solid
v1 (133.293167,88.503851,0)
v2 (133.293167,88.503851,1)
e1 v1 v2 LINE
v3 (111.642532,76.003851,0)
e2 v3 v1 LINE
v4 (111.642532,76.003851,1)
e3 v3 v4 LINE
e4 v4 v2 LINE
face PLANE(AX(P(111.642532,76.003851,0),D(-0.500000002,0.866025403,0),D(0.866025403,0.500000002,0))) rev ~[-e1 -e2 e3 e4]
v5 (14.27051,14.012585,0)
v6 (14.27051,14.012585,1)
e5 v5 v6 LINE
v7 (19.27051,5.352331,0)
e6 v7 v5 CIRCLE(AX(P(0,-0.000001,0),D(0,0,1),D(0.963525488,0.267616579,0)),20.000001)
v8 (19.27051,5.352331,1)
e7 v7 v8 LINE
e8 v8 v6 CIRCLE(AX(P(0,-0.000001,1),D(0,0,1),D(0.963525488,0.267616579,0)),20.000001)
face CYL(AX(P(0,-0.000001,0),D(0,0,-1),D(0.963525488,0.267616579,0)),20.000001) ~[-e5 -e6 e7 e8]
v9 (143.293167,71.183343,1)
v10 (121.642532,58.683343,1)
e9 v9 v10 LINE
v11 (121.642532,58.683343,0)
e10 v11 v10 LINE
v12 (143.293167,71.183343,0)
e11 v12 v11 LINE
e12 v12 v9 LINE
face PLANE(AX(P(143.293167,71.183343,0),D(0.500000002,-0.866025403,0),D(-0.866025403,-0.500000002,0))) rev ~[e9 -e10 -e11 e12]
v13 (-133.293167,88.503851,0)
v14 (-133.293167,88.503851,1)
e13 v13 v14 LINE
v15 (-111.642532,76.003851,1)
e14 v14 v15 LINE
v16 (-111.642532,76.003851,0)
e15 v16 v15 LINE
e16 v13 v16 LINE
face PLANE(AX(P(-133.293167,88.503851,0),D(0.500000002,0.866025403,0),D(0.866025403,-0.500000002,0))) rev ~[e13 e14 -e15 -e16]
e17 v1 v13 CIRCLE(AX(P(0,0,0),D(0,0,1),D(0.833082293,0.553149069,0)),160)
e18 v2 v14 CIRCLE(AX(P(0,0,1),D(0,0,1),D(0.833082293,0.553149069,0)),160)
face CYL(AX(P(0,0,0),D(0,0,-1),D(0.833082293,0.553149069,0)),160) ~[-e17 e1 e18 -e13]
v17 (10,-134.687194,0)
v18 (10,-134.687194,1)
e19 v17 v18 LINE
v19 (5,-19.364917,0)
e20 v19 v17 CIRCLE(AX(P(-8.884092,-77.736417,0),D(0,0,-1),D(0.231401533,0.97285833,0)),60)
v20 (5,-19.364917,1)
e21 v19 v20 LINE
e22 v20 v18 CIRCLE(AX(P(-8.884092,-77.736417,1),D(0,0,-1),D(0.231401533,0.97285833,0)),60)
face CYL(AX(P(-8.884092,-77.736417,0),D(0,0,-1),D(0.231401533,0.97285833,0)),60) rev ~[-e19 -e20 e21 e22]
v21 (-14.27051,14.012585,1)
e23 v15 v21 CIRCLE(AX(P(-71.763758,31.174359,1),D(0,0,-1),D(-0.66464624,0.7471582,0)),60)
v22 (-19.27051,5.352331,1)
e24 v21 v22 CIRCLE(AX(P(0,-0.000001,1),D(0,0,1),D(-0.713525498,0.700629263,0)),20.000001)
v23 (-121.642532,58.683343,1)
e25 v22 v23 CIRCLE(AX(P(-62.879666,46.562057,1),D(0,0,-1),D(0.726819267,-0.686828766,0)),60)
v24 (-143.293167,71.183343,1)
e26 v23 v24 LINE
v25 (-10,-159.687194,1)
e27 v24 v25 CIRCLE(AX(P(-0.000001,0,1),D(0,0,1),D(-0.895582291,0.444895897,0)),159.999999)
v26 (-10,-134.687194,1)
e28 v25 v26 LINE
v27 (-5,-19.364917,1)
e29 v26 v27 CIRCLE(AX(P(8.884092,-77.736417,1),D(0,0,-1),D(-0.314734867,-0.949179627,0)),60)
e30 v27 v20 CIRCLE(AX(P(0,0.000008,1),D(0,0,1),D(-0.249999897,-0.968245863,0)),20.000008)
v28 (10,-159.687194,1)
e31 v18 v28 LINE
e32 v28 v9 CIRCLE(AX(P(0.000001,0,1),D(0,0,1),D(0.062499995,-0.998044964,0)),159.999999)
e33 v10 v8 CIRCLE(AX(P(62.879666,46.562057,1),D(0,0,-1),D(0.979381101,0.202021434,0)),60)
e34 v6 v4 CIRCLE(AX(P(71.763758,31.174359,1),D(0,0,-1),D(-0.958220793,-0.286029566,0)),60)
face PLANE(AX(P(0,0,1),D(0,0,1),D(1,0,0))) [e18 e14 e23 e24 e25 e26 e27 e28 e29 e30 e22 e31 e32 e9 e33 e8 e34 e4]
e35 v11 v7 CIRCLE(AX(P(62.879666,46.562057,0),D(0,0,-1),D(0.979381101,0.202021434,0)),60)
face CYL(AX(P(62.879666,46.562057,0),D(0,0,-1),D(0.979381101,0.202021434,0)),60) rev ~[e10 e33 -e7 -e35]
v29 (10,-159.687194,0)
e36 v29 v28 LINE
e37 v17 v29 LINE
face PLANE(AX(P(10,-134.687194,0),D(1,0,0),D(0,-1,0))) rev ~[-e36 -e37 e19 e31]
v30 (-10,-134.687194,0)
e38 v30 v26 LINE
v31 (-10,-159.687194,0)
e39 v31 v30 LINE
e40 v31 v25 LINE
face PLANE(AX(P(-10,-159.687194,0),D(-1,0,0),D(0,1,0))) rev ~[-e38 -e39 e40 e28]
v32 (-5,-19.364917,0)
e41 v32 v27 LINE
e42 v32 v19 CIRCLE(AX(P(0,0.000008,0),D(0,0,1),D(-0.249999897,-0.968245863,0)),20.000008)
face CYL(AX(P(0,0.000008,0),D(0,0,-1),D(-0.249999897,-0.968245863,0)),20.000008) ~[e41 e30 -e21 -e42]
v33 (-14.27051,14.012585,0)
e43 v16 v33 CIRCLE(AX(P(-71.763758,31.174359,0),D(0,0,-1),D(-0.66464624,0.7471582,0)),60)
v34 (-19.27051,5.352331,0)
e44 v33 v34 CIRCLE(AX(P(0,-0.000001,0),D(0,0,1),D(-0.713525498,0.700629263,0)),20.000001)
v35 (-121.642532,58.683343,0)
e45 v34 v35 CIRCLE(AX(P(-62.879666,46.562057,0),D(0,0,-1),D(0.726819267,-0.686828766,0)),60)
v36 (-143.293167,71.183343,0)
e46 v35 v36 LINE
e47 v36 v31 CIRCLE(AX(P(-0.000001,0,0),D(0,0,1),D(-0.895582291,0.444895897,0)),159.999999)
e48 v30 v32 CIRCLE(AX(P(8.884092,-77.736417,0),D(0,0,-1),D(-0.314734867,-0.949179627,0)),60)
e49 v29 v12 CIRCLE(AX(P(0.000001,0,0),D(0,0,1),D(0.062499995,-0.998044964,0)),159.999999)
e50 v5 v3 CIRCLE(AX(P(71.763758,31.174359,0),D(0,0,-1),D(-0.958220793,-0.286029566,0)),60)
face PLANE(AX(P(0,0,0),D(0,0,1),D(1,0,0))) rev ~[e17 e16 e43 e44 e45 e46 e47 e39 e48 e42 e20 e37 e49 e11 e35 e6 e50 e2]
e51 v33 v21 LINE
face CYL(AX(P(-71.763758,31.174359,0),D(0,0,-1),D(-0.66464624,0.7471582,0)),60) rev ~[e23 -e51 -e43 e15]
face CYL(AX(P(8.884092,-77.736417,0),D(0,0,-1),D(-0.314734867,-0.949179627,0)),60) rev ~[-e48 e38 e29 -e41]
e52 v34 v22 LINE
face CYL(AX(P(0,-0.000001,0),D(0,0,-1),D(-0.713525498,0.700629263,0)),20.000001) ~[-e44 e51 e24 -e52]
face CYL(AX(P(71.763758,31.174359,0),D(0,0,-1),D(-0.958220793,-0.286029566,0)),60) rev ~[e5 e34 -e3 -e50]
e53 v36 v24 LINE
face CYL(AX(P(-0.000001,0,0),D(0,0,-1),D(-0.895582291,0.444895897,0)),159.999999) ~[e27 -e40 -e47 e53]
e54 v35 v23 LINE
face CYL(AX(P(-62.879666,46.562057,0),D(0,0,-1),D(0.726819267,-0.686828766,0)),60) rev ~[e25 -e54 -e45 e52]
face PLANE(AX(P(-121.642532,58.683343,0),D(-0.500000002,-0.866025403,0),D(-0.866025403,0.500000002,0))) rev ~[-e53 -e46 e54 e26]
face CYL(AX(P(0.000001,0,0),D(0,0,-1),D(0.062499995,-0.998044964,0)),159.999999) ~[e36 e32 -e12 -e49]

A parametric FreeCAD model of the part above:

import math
import FreeCAD as App
import Part
import Sketcher

V = App.Vector
Q = App.Units.Quantity

doc = App.newDocument("Part")
params = doc.addObject("Spreadsheet::Sheet", "Params")
for row, (alias, value) in enumerate([
    ("sketch1_radius", "60 mm"),
    ("sketch1_radius2", "159.999999 mm"),
    ("sketch1_radius3", "20.000001 mm"),
    ("sketch1_height", "25 mm"),
    ("sketch1_length", "25 mm"),
    ("pad1_length", "1 mm"),
], start=1):
    params.set(f"A{row}", alias)
    params.set(f"B{row}", "=" + value)
    params.setAlias(f"B{row}", alias)

body = doc.addObject("PartDesign::Body", "Body")

# Sketch on XY plane
sketch1 = doc.addObject("Sketcher::SketchObject", "Sketch")
body.addObject(sketch1)
sketch1.AttachmentSupport = (doc.XY_Plane, [""])
sketch1.MapMode = "FlatFace"
sketch1.addGeometry(Part.ArcOfCircle(Part.Circle(V(9, -78, 0), V(0, 0, 1), 60), math.radians(103), math.radians(252)), False)
sketch1.addGeometry(Part.ArcOfCircle(Part.Circle(V(0, 0, 0), V(0, 0, 1), 20), math.radians(-104), math.radians(-76)), False)
sketch1.addGeometry(Part.ArcOfCircle(Part.Circle(V(-9, -78, 0), V(0, 0, 1), 60), math.radians(-72), math.radians(77)), False)
sketch1.addGeometry(Part.LineSegment(V(10, -135, 0), V(10, -160, 0)), False)
sketch1.addGeometry(Part.ArcOfCircle(Part.Circle(V(0, 0, 0), V(0, 0, 1), 160), math.radians(-86), math.radians(26)), False)
sketch1.addGeometry(Part.LineSegment(V(143, 71, 0), V(122, 59, 0)), False)
sketch1.addGeometry(Part.ArcOfCircle(Part.Circle(V(63, 47, 0), V(0, 0, 1), 60), math.radians(-137), math.radians(12)), False)
sketch1.addGeometry(Part.ArcOfCircle(Part.Circle(V(0, 0, 0), V(0, 0, 1), 20), math.radians(16), math.radians(44)), False)
sketch1.addGeometry(Part.ArcOfCircle(Part.Circle(V(72, 31, 0), V(0, 0, 1), 60), math.radians(48), math.radians(197)), False)
sketch1.addGeometry(Part.LineSegment(V(112, 76, 0), V(133, 89, 0)), False)
sketch1.addGeometry(Part.ArcOfCircle(Part.Circle(V(0, 0, 0), V(0, 0, 1), 160), math.radians(34), math.radians(146)), False)
sketch1.addGeometry(Part.LineSegment(V(-133, 89, 0), V(-112, 76, 0)), False)
sketch1.addGeometry(Part.ArcOfCircle(Part.Circle(V(-72, 31, 0), V(0, 0, 1), 60), math.radians(-17), math.radians(132)), False)
sketch1.addGeometry(Part.ArcOfCircle(Part.Circle(V(0, 0, 0), V(0, 0, 1), 20), math.radians(136), math.radians(164)), False)
sketch1.addGeometry(Part.ArcOfCircle(Part.Circle(V(-63, 47, 0), V(0, 0, 1), 60), math.radians(168), math.radians(317)), False)
sketch1.addGeometry(Part.LineSegment(V(-122, 59, 0), V(-143, 71, 0)), False)
sketch1.addGeometry(Part.ArcOfCircle(Part.Circle(V(0, 0, 0), V(0, 0, 1), 160), math.radians(154), math.radians(266)), False)
sketch1.addGeometry(Part.LineSegment(V(-10, -160, 0), V(-10, -135, 0)), False)
sketch1.addConstraint(Sketcher.Constraint("Coincident", 0, 1, 1, 1))
sketch1.addConstraint(Sketcher.Constraint("Coincident", 1, 2, 2, 2))
sketch1.addConstraint(Sketcher.Constraint("Coincident", 2, 1, 3, 1))
sketch1.addConstraint(Sketcher.Constraint("Coincident", 3, 2, 4, 1))
sketch1.addConstraint(Sketcher.Constraint("Coincident", 4, 2, 5, 1))
sketch1.addConstraint(Sketcher.Constraint("Coincident", 5, 2, 6, 2))
sketch1.addConstraint(Sketcher.Constraint("Coincident", 6, 1, 7, 1))
sketch1.addConstraint(Sketcher.Constraint("Coincident", 7, 2, 8, 2))
sketch1.addConstraint(Sketcher.Constraint("Coincident", 8, 1, 9, 1))
sketch1.addConstraint(Sketcher.Constraint("Coincident", 9, 2, 10, 1))
sketch1.addConstraint(Sketcher.Constraint("Coincident", 10, 2, 11, 1))
sketch1.addConstraint(Sketcher.Constraint("Coincident", 11, 2, 12, 2))
sketch1.addConstraint(Sketcher.Constraint("Coincident", 12, 1, 13, 1))
sketch1.addConstraint(Sketcher.Constraint("Coincident", 13, 2, 14, 2))
sketch1.addConstraint(Sketcher.Constraint("Coincident", 14, 1, 15, 1))
sketch1.addConstraint(Sketcher.Constraint("Coincident", 15, 2, 16, 1))
sketch1.addConstraint(Sketcher.Constraint("Coincident", 16, 2, 17, 1))
sketch1.addConstraint(Sketcher.Constraint("Coincident", 17, 2, 0, 2))
sketch1.addConstraint(Sketcher.Constraint("Vertical", 3))
sketch1.addConstraint(Sketcher.Constraint("Vertical", 17))
sketch1.addConstraint(Sketcher.Constraint("Coincident", 1, 3, -1, 1))
sketch1.addConstraint(Sketcher.Constraint("Coincident", 4, 3, -1, 1))
sketch1.addConstraint(Sketcher.Constraint("Coincident", 7, 3, -1, 1))
sketch1.addConstraint(Sketcher.Constraint("Coincident", 10, 3, -1, 1))
sketch1.addConstraint(Sketcher.Constraint("Coincident", 13, 3, -1, 1))
sketch1.addConstraint(Sketcher.Constraint("Coincident", 16, 3, -1, 1))
sketch1.addConstraint(Sketcher.Constraint("Equal", 0, 2))
sketch1.addConstraint(Sketcher.Constraint("Equal", 2, 6))
sketch1.addConstraint(Sketcher.Constraint("Equal", 6, 8))
sketch1.addConstraint(Sketcher.Constraint("Equal", 4, 10))
sketch1.addConstraint(Sketcher.Constraint("Equal", 8, 12))
sketch1.addConstraint(Sketcher.Constraint("Equal", 7, 13))
sketch1.addConstraint(Sketcher.Constraint("Equal", 12, 14))
sketch1.addConstraint(Sketcher.Constraint("Equal", 10, 16))
sketch1.addConstraint(Sketcher.Constraint("Symmetric", 0, 3, 2, 3, -2))
sketch1.addConstraint(Sketcher.Constraint("Symmetric", 8, 3, 12, 3, -2))
sketch1.addConstraint(Sketcher.Constraint("Symmetric", 6, 3, 14, 3, -2))
sketch1.addConstraint(Sketcher.Constraint("Parallel", 5, 9))
sketch1.addConstraint(Sketcher.Constraint("Parallel", 11, 15))
sketch1.addConstraint(Sketcher.Constraint("Horizontal", 9, 2, 10, 2))
sketch1.addConstraint(Sketcher.Constraint("Horizontal", 8, 1, 11, 2))
sketch1.addConstraint(Sketcher.Constraint("Horizontal", 5, 2, 14, 1))
sketch1.addConstraint(Sketcher.Constraint("Horizontal", 3, 2, 16, 2))
sketch1.addConstraint(Sketcher.Constraint("Equal", 5, 9))
sketch1.addConstraint(Sketcher.Constraint("Radius", 0, 60.0))
sketch1.addConstraint(Sketcher.Constraint("Radius", 4, 159.999999))
sketch1.addConstraint(Sketcher.Constraint("Radius", 7, 20.000001))
sketch1.addConstraint(Sketcher.Constraint("DistanceY", 3, 2, 3, 1, 25.0))
sketch1.addConstraint(Sketcher.Constraint("Angle", 5, Q("-150 deg")))
sketch1.addConstraint(Sketcher.Constraint("Distance", 5, 25.0))
sketch1.addConstraint(Sketcher.Constraint("DistanceX", 0, 1, -1, 1, 5.0))
sketch1.addConstraint(Sketcher.Constraint("DistanceX", -1, 1, 2, 1, 10.0))
sketch1.addConstraint(Sketcher.Constraint("DistanceX", 7, 2, 6, 1, 5.0))
sketch1.addConstraint(Sketcher.Constraint("DistanceX", 8, 1, 5, 2, 10.0))
sketch1.addConstraint(Sketcher.Constraint("Radius", 1, 20.000008))
sketch1.addConstraint(Sketcher.Constraint("DistanceX", 6, 3, 4, 2, 80.413501))
sketch1.addConstraint(Sketcher.Constraint("DistanceY", -1, 1, 8, 3, 31.174359))
sketch1.setExpression("Constraints[44]", "Params.sketch1_radius")
sketch1.setExpression("Constraints[45]", "Params.sketch1_radius2")
sketch1.setExpression("Constraints[46]", "Params.sketch1_radius3")
sketch1.setExpression("Constraints[47]", "Params.sketch1_height")
sketch1.setExpression("Constraints[49]", "Params.sketch1_length")
pad1 = doc.addObject("PartDesign::Pad", "Pad")
body.addObject(pad1)
pad1.Profile = sketch1
pad1.setExpression("Length", "Params.pad1_length")

doc.recompute()
